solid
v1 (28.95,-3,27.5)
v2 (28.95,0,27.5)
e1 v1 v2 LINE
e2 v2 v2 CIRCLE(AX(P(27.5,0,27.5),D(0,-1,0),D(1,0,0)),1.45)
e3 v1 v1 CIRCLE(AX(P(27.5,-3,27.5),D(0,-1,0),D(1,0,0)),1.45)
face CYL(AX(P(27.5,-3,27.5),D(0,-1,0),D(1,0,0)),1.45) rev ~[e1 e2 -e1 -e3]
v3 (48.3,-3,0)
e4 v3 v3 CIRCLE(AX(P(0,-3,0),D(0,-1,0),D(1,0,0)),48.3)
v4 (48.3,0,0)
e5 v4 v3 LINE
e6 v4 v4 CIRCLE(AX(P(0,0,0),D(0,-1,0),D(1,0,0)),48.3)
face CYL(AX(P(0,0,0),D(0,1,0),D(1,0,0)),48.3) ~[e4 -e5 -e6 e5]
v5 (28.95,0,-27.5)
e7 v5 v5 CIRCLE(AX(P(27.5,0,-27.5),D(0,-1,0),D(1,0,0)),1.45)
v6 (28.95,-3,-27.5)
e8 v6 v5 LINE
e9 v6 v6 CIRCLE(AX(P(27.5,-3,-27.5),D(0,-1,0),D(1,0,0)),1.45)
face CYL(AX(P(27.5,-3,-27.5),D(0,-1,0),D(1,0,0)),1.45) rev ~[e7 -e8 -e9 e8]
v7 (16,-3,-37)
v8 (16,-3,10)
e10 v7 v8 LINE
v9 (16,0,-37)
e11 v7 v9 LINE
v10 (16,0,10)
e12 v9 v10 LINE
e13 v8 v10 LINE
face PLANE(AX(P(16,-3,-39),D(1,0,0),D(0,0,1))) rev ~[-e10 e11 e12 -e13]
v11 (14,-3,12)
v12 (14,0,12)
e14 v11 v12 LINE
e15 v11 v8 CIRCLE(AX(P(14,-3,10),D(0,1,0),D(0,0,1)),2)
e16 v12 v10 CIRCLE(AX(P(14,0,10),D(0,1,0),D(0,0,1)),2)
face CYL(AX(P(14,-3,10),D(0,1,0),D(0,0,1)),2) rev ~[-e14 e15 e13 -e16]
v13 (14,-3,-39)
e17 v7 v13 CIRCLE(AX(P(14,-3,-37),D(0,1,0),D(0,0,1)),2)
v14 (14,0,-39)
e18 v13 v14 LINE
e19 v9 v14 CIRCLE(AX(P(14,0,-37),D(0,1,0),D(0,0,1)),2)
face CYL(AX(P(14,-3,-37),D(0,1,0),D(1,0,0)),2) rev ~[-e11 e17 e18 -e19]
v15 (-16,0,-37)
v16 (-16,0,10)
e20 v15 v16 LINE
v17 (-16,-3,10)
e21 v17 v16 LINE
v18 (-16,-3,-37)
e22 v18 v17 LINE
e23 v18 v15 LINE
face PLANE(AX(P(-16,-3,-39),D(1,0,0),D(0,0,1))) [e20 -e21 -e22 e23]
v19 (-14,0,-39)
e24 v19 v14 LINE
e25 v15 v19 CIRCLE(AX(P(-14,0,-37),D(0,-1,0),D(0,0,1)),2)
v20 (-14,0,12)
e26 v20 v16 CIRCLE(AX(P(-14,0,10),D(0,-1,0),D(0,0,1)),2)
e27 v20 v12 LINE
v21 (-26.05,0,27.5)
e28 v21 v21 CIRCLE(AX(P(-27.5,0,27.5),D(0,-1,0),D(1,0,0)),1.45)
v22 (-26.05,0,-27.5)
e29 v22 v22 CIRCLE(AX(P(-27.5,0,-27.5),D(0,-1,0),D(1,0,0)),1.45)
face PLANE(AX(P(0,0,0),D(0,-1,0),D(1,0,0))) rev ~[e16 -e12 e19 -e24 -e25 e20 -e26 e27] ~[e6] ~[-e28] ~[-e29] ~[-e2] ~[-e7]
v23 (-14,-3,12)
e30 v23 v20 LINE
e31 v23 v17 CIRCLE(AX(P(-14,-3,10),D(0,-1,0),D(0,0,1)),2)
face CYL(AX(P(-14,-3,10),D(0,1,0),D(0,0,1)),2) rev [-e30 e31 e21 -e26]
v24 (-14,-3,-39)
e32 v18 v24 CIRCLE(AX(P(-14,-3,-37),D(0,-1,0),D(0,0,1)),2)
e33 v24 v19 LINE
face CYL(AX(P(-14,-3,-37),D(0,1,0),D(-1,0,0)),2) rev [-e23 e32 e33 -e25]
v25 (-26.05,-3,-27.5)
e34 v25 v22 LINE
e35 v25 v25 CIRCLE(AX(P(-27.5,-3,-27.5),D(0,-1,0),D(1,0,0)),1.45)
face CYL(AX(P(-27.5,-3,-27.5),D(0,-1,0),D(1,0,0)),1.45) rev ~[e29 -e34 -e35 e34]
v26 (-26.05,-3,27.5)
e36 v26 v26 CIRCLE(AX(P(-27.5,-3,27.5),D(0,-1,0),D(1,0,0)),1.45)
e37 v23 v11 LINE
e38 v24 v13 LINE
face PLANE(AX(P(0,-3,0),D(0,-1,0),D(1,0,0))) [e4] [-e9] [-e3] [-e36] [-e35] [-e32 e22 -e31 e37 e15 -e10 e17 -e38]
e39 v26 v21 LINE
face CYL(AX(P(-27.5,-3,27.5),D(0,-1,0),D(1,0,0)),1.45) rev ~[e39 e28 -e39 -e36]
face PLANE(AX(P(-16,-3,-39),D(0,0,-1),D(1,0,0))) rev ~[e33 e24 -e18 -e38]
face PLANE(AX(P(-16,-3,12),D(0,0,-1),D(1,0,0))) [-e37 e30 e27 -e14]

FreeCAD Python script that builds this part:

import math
import FreeCAD as App
import Part
import Sketcher
from FreeCAD import Vector
Q = App.Units.Quantity


def edges_at(feature, points):
    """Names of the edges that pass closest to the given points."""
    edges = feature.Shape.Edges
    near = lambda p: min(range(len(edges)), key=lambda i: edges[i].distToShape(Part.Vertex(*p))[0])
    return sorted({f"Edge{near(p) + 1}" for p in points})


def add_polygon(sketch, points):
    """Adds a closed chain of lines whose ends are joined by coincident constraints."""
    first, n = sketch.GeometryCount, len(points)
    for a, b in zip(points, points[1:] + points[:1]):
        sketch.addGeometry(Part.LineSegment(App.Vector(*a, 0), App.Vector(*b, 0)), False)
    for i in range(n):
        sketch.addConstraint(Sketcher.Constraint("Coincident", first + i, 2, first + (i + 1) % n, 1))

doc = App.newDocument("Part")
body = doc.addObject("PartDesign::Body", "Body")
body.AllowCompound = True

sketch1 = body.newObject("Sketcher::SketchObject", "Sketch")
sketch1.AttachmentSupport = (doc.getObject("XZ_Plane"), [""])
sketch1.MapMode = "FlatFace"
sketch1.addGeometry(Part.Circle(Vector(0, 0, 0), Vector(0, 0, 1), 48), False)
sketch1.addConstraint(Sketcher.Constraint("Coincident", 0, 3, -1, 1))
sketch1.addConstraint(Sketcher.Constraint("Diameter", 0, Q("96.6 mm")))
pad1 = body.newObject("PartDesign::Pad", "Pad")
pad1.Profile = sketch1
pad1.Length = 3

sketch2 = body.newObject("Sketcher::SketchObject", "Sketch001")
sketch2.AttachmentSupport = (doc.getObject("XZ_Plane"), [""])
sketch2.MapMode = "FlatFace"
sketch2.AttachmentOffset = App.Placement(Vector(0, 0, 3), App.Rotation())
sketch2.addGeometry(Part.Circle(Vector(-8, 0, 0), Vector(0, 0, 1), 1.2), False)
sketch2.addGeometry(Part.Circle(Vector(8, 0, 0), Vector(0, 0, 1), 1.2), False)
sketch2.addGeometry(Part.Circle(Vector(0, 0, 0), Vector(0, 0, 1), 2.5), False)
sketch2.addConstraint(Sketcher.Constraint("Coincident", 2, 3, -1, 1))
sketch2.addConstraint(Sketcher.Constraint("Equal", 0, 1))
sketch2.addConstraint(Sketcher.Constraint("Symmetric", 0, 3, 1, 3, -1, 1))
sketch2.addConstraint(Sketcher.Constraint("PointOnObject", 0, 3, -1))
sketch2.addConstraint(Sketcher.Constraint("Diameter", 2, Q("5 mm")))
sketch2.addConstraint(Sketcher.Constraint("Diameter", 0, Q("2.5 mm")))
sketch2.addConstraint(Sketcher.Constraint("DistanceX", 0, 3, -1, 1, Q("8 mm")))
pocket1 = body.newObject("PartDesign::Pocket", "Pocket")
pocket1.Profile = sketch2
pocket1.Type = "ThroughAll"

sketch3 = body.newObject("Sketcher::SketchObject", "Sketch002")
sketch3.AttachmentSupport = (doc.getObject("XZ_Plane"), [""])
sketch3.MapMode = "FlatFace"
sketch3.AttachmentOffset = App.Placement(Vector(0, 0, 3), App.Rotation())
sketch3.addGeometry(Part.Circle(Vector(-27.5, 27.5, 0), Vector(0, 0, 1), 1.4), False)
sketch3.addGeometry(Part.Circle(Vector(27.5, 27.5, 0), Vector(0, 0, 1), 1.4), False)
sketch3.addGeometry(Part.Circle(Vector(-27.5, -27.5, 0), Vector(0, 0, 1), 1.4), False)
sketch3.addGeometry(Part.Circle(Vector(27.5, -27.5, 0), Vector(0, 0, 1), 1.4), False)
sketch3.addConstraint(Sketcher.Constraint("Equal", 0, 1))
sketch3.addConstraint(Sketcher.Constraint("Equal", 1, 2))
sketch3.addConstraint(Sketcher.Constraint("Equal", 2, 3))
sketch3.addConstraint(Sketcher.Constraint("Symmetric", 1, 3, 2, 3, -1, 1))
sketch3.addConstraint(Sketcher.Constraint("Symmetric", 0, 3, 3, 3, -1, 1))
sketch3.addConstraint(Sketcher.Constraint("Symmetric", 0, 3, 1, 3, -2))
sketch3.addConstraint(Sketcher.Constraint("Diameter", 0, Q("2.9 mm")))
sketch3.addConstraint(Sketcher.Constraint("DistanceX", 0, 3, 1, 3, Q("55 mm")))
sketch3.addConstraint(Sketcher.Constraint("DistanceY", 2, 3, 0, 3, Q("55 mm")))
pocket2 = body.newObject("PartDesign::Pocket", "Pocket001")
pocket2.Profile = sketch3
pocket2.Type = "ThroughAll"

sketch4 = body.newObject("Sketcher::SketchObject", "Sketch003")
sketch4.AttachmentSupport = (doc.getObject("XZ_Plane"), [""])
sketch4.MapMode = "FlatFace"
sketch4.AttachmentOffset = App.Placement(Vector(0, 0, 3), App.Rotation())
sketch4.addGeometry(Part.LineSegment(Vector(-10.1, -33, 0), Vector(10.1, -33, 0)), False)
sketch4.addGeometry(Part.LineSegment(Vector(10.1, -33, 0), Vector(10.1, -5.6, 0)), False)
sketch4.addGeometry(Part.ArcOfCircle(Part.Circle(Vector(0, 0, 0), Vector(0, 0, 1), 11.5), math.radians(-151), math.radians(-29)), False)
sketch4.addGeometry(Part.LineSegment(Vector(-10.1, -5.6, 0), Vector(-10.1, -33, 0)), False)
sketch4.addGeometry(Part.LineSegment(Vector(10.1, 0, 0), Vector(10.1, -5.6, 0)), False)
sketch4.addGeometry(Part.ArcOfCircle(Part.Circle(Vector(0, 0, 0), Vector(0, 0, 1), 11.5), math.radians(-29), math.radians(0)), False)
sketch4.addGeometry(Part.ArcOfCircle(Part.Circle(Vector(0, 0, 0), Vector(0, 0, 1), 11.5), math.radians(0), math.radians(209)), False)
sketch4.addGeometry(Part.LineSegment(Vector(-10.1, -5.6, 0), Vector(-10.1, 0, 0)), False)
sketch4.addGeometry(Part.LineSegment(Vector(-10.1, 0, 0), Vector(10.1, 0, 0)), False)
sketch4.addGeometry(Part.Circle(Vector(-13.5, -6.5, 0), Vector(0, 0, 1), 1), False)
sketch4.addGeometry(Part.Circle(Vector(-13.5, -14.5, 0), Vector(0, 0, 1), 1), False)
sketch4.addGeometry(Part.Circle(Vector(-13.5, -22.5, 0), Vector(0, 0, 1), 1), False)
sketch4.addGeometry(Part.Circle(Vector(-13.5, -30.5, 0), Vector(0, 0, 1), 1), False)
sketch4.addGeometry(Part.Circle(Vector(13.5, -6.5, 0), Vector(0, 0, 1), 1), False)
sketch4.addGeometry(Part.Circle(Vector(13.5, -14.5, 0), Vector(0, 0, 1), 1), False)
sketch4.addGeometry(Part.Circle(Vector(13.5, -22.5, 0), Vector(0, 0, 1), 1), False)
sketch4.addGeometry(Part.Circle(Vector(13.5, -30.5, 0), Vector(0, 0, 1), 1), False)
sketch4.addGeometry(Part.Circle(Vector(-8, -36, 0), Vector(0, 0, 1), 1), False)
sketch4.addGeometry(Part.Circle(Vector(8, -36, 0), Vector(0, 0, 1), 1), False)
sketch4.addConstraint(Sketcher.Constraint("Coincident", 0, 2, 1, 1))
sketch4.addConstraint(Sketcher.Constraint("Coincident", 1, 2, 2, 2))
sketch4.addConstraint(Sketcher.Constraint("Coincident", 2, 1, 3, 1))
sketch4.addConstraint(Sketcher.Constraint("Coincident", 3, 2, 0, 1))
sketch4.addConstraint(Sketcher.Constraint("Coincident", 4, 2, 5, 1))
sketch4.addConstraint(Sketcher.Constraint("Tangent", 5, 2, 6, 1))
sketch4.addConstraint(Sketcher.Constraint("Coincident", 6, 2, 7, 1))
sketch4.addConstraint(Sketcher.Constraint("Coincident", 7, 2, 8, 1))
sketch4.addConstraint(Sketcher.Constraint("Coincident", 8, 2, 4, 1))
sketch4.addConstraint(Sketcher.Constraint("Horizontal", 0))
sketch4.addConstraint(Sketcher.Constraint("Vertical", 1))
sketch4.addConstraint(Sketcher.Constraint("Vertical", 3))
sketch4.addConstraint(Sketcher.Constraint("Vertical", 4))
sketch4.addConstraint(Sketcher.Constraint("Vertical", 7))
sketch4.addConstraint(Sketcher.Constraint("Horizontal", 8))
sketch4.addConstraint(Sketcher.Constraint("Coincident", 2, 3, -1, 1))
sketch4.addConstraint(Sketcher.Constraint("Coincident", 5, 3, -1, 1))
sketch4.addConstraint(Sketcher.Constraint("Coincident", 4, 2, 1, 2))
sketch4.addConstraint(Sketcher.Constraint("Coincident", 6, 2, 2, 1))
sketch4.addConstraint(Sketcher.Constraint("Equal", 9, 10))
sketch4.addConstraint(Sketcher.Constraint("Equal", 10, 11))
sketch4.addConstraint(Sketcher.Constraint("Equal", 11, 12))
sketch4.addConstraint(Sketcher.Constraint("Equal", 12, 13))
sketch4.addConstraint(Sketcher.Constraint("Equal", 13, 14))
sketch4.addConstraint(Sketcher.Constraint("Equal", 14, 15))
sketch4.addConstraint(Sketcher.Constraint("Equal", 15, 16))
sketch4.addConstraint(Sketcher.Constraint("Equal", 16, 17))
sketch4.addConstraint(Sketcher.Constraint("Equal", 17, 18))
sketch4.addConstraint(Sketcher.Constraint("Symmetric", 7, 2, 8, 2, -1, 1))
sketch4.addConstraint(Sketcher.Constraint("Symmetric", 9, 3, 13, 3, -2))
sketch4.addConstraint(Sketcher.Constraint("Symmetric", 10, 3, 14, 3, -2))
sketch4.addConstraint(Sketcher.Constraint("Symmetric", 11, 3, 15, 3, -2))
sketch4.addConstraint(Sketcher.Constraint("Symmetric", 12, 3, 16, 3, -2))
sketch4.addConstraint(Sketcher.Constraint("Symmetric", 17, 3, 18, 3, -2))
sketch4.addConstraint(Sketcher.Constraint("PointOnObject", 5, 2, -1))
sketch4.addConstraint(Sketcher.Constraint("Vertical", 9, 3, 10, 3))
sketch4.addConstraint(Sketcher.Constraint("Vertical", 10, 3, 11, 3))
sketch4.addConstraint(Sketcher.Constraint("Vertical", 11, 3, 12, 3))
sketch4.addConstraint(Sketcher.Constraint("Diameter", 9, Q("2 mm")))
sketch4.addConstraint(Sketcher.Constraint("Radius", 2, Q("11.5 mm")))
sketch4.addConstraint(Sketcher.Constraint("DistanceX", 0, 1, 0, 2, Q("20.1 mm")))
sketch4.addConstraint(Sketcher.Constraint("DistanceX", 17, 3, -1, 1, Q("8 mm")))
sketch4.addConstraint(Sketcher.Constraint("DistanceY", 17, 3, -1, 1, Q("36 mm")))
sketch4.addConstraint(Sketcher.Constraint("DistanceY", 0, 2, -1, 1, Q("33 mm")))
sketch4.addConstraint(Sketcher.Constraint("DistanceY", 10, 3, 9, 3, Q("8 mm")))
sketch4.addConstraint(Sketcher.Constraint("DistanceY", 11, 3, 10, 3, Q("8 mm")))
sketch4.addConstraint(Sketcher.Constraint("DistanceY", 12, 3, 11, 3, Q("8 mm")))
sketch4.addConstraint(Sketcher.Constraint("DistanceX", 9, 3, 13, 3, Q("27 mm")))
sketch4.addConstraint(Sketcher.Constraint("DistanceY", 9, 3, -1, 1, Q("6.5 mm")))
pocket3 = body.newObject("PartDesign::Pocket", "Pocket002")
pocket3.Profile = sketch4
pocket3.Type = "ThroughAll"

sketch5 = body.newObject("Sketcher::SketchObject", "Sketch004")
sketch5.AttachmentSupport = (doc.getObject("XZ_Plane"), [""])
sketch5.MapMode = "FlatFace"
sketch5.AttachmentOffset = App.Placement(Vector(0, 0, 3), App.Rotation())
add_polygon(sketch5, [(-16, 12), (-16, -39), (16, -39), (16, 12)])
sketch5.addConstraint(Sketcher.Constraint("Vertical", 0))
sketch5.addConstraint(Sketcher.Constraint("Horizontal", 1))
sketch5.addConstraint(Sketcher.Constraint("Vertical", 2))
sketch5.addConstraint(Sketcher.Constraint("Horizontal", 3))
sketch5.addConstraint(Sketcher.Constraint("DistanceX", 1, 1, 1, 2, Q("32 mm")))
sketch5.addConstraint(Sketcher.Constraint("DistanceY", 0, 2, 0, 1, Q("51 mm")))
sketch5.addConstraint(Sketcher.Constraint("DistanceX", 0, 2, -1, 1, Q("16 mm")))
sketch5.addConstraint(Sketcher.Constraint("DistanceY", 0, 2, -1, 1, Q("39 mm")))
pocket4 = body.newObject("PartDesign::Pocket", "Pocket003")
pocket4.Profile = sketch5
pocket4.Type = "ThroughAll"
doc.recompute()

fillet = body.newObject("PartDesign::Fillet", "Fillet")
fillet.Base = (pocket4, edges_at(pocket4, [(-16, -1.5, 12)]))
fillet.Radius = 2
doc.recompute()

fillet2 = body.newObject("PartDesign::Fillet", "Fillet001")
fillet2.Base = (fillet, edges_at(fillet, [(16, -1.5, 12)]))
fillet2.Radius = 2
doc.recompute()

fillet3 = body.newObject("PartDesign::Fillet", "Fillet002")
fillet3.Base = (fillet2, edges_at(fillet2, [(16, -1.5, -39), (-16, -1.5, -39)]))
fillet3.Radius = 2

doc.recompute()
